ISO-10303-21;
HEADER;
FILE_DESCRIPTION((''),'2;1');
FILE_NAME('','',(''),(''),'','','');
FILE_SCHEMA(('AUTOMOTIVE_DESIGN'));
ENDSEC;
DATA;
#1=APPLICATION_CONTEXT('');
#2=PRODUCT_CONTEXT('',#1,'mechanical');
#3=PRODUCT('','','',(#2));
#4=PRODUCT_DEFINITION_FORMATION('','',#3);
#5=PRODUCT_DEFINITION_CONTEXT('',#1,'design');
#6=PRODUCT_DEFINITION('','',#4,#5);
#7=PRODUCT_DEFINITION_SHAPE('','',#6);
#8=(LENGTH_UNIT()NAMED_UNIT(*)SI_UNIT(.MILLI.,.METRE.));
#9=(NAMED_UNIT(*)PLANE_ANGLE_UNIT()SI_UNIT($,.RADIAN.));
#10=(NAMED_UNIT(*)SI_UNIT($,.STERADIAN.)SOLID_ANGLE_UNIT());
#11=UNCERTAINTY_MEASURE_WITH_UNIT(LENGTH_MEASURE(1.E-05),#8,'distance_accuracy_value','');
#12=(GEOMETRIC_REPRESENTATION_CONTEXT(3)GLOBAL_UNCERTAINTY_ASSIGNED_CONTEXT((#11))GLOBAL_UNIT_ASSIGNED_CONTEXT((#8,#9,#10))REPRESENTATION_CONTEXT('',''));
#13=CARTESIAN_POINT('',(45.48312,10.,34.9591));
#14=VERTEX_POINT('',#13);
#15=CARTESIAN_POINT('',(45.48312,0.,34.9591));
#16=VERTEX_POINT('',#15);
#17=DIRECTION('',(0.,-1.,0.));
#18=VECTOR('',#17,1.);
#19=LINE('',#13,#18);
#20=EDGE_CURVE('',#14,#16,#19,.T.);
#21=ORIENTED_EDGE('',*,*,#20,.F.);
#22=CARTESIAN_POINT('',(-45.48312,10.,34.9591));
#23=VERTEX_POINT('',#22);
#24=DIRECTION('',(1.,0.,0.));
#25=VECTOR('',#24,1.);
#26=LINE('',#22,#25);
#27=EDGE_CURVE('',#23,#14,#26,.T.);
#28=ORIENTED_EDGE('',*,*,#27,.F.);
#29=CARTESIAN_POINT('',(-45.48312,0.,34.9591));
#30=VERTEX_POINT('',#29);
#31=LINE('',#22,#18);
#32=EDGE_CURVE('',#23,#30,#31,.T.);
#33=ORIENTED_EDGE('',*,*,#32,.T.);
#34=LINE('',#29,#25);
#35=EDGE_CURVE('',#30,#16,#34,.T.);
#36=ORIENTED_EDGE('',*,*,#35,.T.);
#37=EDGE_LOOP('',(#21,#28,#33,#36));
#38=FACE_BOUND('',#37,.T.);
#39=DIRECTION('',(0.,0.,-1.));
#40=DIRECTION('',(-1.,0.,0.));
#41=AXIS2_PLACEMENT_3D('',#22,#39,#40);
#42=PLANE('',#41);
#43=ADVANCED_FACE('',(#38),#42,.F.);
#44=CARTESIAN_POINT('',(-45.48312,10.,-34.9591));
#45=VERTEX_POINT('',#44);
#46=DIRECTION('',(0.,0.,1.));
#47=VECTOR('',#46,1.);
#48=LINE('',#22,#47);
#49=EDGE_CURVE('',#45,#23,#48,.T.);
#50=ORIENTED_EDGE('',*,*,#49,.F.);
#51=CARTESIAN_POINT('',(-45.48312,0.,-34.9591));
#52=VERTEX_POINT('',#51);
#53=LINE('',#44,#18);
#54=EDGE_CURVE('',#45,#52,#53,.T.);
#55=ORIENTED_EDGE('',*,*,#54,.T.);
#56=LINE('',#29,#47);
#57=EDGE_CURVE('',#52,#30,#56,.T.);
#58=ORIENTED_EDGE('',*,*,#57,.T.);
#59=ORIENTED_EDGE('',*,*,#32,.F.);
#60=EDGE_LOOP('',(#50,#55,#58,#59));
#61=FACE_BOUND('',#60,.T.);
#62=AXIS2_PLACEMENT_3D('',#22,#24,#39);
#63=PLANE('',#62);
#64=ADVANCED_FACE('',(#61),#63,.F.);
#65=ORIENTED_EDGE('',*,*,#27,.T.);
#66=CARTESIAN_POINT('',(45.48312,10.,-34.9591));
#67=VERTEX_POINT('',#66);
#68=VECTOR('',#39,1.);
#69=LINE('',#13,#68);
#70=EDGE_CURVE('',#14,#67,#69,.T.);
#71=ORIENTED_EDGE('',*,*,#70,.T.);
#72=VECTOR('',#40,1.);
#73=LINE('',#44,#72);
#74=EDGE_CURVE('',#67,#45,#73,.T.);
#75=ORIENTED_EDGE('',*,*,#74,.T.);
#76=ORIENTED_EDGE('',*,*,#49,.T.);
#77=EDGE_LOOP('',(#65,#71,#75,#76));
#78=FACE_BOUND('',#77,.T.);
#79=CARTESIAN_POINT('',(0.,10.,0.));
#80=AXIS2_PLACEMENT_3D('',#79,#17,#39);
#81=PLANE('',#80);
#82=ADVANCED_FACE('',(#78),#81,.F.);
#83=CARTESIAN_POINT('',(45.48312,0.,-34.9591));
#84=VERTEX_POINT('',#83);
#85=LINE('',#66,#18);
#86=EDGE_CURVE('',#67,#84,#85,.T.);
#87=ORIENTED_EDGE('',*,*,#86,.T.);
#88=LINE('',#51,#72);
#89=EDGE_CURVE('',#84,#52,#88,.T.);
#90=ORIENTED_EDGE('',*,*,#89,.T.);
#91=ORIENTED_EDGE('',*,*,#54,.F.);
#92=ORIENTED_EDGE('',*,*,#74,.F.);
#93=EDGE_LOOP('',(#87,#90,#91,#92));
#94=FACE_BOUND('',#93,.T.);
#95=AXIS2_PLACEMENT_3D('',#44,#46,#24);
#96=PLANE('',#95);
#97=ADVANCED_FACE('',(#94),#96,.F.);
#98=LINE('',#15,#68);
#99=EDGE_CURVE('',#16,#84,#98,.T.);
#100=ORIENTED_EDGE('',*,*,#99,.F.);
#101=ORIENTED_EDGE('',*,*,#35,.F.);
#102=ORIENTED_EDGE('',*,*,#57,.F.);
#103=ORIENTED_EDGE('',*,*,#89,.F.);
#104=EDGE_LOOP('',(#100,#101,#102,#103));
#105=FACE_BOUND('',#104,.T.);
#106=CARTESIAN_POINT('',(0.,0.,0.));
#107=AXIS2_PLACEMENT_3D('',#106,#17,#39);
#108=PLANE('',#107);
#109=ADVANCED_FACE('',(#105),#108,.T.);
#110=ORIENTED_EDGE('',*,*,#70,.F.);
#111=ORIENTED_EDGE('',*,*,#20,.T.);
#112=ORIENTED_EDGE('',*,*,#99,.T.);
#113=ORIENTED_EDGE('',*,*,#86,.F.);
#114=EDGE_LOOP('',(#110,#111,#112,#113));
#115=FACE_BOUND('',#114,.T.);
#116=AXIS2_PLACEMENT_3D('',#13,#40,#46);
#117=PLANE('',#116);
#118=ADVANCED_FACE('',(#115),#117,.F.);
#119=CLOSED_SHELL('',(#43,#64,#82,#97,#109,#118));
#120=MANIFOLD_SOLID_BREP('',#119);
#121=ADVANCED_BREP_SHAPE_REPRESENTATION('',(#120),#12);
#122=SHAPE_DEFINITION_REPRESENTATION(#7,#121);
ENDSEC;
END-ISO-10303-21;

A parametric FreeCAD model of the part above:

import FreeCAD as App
import Part
import Sketcher
from FreeCAD import Vector


def add_polygon(sketch, points):
    """Adds a closed chain of lines whose ends are joined by coincident constraints."""
    first, n = sketch.GeometryCount, len(points)
    for a, b in zip(points, points[1:] + points[:1]):
        sketch.addGeometry(Part.LineSegment(App.Vector(*a, 0), App.Vector(*b, 0)), False)
    for i in range(n):
        sketch.addConstraint(Sketcher.Constraint("Coincident", first + i, 2, first + (i + 1) % n, 1))

doc = App.newDocument("Part")
body = doc.addObject("PartDesign::Body", "Body")

sketch1 = body.newObject("Sketcher::SketchObject", "Sketch")
sketch1.AttachmentSupport = (doc.getObject("XZ_Plane"), [""])
sketch1.MapMode = "FlatFace"
add_polygon(sketch1, [(-45.48312, -34.9591), (-45.48312, 34.9591), (45.48312, 34.9591), (45.48312, -34.9591)])
sketch1.addConstraint([
    Sketcher.Constraint("Vertical", 0),
    Sketcher.Constraint("Horizontal", 1),
    Sketcher.Constraint("Vertical", 2),
    Sketcher.Constraint("Horizontal", 3),
    Sketcher.Constraint("Symmetric", 0, 2, 2, 2, -1, 1),
    Sketcher.Constraint("DistanceY", 0, 1, 0, 2, 69.9182),
    Sketcher.Constraint("DistanceX", 1, 1, 1, 2, 90.96624),
])
pad1 = body.newObject("PartDesign::Pad", "Pad")
pad1.Profile = sketch1
pad1.Length = 10
pad1.Reversed = True

doc.recompute()
